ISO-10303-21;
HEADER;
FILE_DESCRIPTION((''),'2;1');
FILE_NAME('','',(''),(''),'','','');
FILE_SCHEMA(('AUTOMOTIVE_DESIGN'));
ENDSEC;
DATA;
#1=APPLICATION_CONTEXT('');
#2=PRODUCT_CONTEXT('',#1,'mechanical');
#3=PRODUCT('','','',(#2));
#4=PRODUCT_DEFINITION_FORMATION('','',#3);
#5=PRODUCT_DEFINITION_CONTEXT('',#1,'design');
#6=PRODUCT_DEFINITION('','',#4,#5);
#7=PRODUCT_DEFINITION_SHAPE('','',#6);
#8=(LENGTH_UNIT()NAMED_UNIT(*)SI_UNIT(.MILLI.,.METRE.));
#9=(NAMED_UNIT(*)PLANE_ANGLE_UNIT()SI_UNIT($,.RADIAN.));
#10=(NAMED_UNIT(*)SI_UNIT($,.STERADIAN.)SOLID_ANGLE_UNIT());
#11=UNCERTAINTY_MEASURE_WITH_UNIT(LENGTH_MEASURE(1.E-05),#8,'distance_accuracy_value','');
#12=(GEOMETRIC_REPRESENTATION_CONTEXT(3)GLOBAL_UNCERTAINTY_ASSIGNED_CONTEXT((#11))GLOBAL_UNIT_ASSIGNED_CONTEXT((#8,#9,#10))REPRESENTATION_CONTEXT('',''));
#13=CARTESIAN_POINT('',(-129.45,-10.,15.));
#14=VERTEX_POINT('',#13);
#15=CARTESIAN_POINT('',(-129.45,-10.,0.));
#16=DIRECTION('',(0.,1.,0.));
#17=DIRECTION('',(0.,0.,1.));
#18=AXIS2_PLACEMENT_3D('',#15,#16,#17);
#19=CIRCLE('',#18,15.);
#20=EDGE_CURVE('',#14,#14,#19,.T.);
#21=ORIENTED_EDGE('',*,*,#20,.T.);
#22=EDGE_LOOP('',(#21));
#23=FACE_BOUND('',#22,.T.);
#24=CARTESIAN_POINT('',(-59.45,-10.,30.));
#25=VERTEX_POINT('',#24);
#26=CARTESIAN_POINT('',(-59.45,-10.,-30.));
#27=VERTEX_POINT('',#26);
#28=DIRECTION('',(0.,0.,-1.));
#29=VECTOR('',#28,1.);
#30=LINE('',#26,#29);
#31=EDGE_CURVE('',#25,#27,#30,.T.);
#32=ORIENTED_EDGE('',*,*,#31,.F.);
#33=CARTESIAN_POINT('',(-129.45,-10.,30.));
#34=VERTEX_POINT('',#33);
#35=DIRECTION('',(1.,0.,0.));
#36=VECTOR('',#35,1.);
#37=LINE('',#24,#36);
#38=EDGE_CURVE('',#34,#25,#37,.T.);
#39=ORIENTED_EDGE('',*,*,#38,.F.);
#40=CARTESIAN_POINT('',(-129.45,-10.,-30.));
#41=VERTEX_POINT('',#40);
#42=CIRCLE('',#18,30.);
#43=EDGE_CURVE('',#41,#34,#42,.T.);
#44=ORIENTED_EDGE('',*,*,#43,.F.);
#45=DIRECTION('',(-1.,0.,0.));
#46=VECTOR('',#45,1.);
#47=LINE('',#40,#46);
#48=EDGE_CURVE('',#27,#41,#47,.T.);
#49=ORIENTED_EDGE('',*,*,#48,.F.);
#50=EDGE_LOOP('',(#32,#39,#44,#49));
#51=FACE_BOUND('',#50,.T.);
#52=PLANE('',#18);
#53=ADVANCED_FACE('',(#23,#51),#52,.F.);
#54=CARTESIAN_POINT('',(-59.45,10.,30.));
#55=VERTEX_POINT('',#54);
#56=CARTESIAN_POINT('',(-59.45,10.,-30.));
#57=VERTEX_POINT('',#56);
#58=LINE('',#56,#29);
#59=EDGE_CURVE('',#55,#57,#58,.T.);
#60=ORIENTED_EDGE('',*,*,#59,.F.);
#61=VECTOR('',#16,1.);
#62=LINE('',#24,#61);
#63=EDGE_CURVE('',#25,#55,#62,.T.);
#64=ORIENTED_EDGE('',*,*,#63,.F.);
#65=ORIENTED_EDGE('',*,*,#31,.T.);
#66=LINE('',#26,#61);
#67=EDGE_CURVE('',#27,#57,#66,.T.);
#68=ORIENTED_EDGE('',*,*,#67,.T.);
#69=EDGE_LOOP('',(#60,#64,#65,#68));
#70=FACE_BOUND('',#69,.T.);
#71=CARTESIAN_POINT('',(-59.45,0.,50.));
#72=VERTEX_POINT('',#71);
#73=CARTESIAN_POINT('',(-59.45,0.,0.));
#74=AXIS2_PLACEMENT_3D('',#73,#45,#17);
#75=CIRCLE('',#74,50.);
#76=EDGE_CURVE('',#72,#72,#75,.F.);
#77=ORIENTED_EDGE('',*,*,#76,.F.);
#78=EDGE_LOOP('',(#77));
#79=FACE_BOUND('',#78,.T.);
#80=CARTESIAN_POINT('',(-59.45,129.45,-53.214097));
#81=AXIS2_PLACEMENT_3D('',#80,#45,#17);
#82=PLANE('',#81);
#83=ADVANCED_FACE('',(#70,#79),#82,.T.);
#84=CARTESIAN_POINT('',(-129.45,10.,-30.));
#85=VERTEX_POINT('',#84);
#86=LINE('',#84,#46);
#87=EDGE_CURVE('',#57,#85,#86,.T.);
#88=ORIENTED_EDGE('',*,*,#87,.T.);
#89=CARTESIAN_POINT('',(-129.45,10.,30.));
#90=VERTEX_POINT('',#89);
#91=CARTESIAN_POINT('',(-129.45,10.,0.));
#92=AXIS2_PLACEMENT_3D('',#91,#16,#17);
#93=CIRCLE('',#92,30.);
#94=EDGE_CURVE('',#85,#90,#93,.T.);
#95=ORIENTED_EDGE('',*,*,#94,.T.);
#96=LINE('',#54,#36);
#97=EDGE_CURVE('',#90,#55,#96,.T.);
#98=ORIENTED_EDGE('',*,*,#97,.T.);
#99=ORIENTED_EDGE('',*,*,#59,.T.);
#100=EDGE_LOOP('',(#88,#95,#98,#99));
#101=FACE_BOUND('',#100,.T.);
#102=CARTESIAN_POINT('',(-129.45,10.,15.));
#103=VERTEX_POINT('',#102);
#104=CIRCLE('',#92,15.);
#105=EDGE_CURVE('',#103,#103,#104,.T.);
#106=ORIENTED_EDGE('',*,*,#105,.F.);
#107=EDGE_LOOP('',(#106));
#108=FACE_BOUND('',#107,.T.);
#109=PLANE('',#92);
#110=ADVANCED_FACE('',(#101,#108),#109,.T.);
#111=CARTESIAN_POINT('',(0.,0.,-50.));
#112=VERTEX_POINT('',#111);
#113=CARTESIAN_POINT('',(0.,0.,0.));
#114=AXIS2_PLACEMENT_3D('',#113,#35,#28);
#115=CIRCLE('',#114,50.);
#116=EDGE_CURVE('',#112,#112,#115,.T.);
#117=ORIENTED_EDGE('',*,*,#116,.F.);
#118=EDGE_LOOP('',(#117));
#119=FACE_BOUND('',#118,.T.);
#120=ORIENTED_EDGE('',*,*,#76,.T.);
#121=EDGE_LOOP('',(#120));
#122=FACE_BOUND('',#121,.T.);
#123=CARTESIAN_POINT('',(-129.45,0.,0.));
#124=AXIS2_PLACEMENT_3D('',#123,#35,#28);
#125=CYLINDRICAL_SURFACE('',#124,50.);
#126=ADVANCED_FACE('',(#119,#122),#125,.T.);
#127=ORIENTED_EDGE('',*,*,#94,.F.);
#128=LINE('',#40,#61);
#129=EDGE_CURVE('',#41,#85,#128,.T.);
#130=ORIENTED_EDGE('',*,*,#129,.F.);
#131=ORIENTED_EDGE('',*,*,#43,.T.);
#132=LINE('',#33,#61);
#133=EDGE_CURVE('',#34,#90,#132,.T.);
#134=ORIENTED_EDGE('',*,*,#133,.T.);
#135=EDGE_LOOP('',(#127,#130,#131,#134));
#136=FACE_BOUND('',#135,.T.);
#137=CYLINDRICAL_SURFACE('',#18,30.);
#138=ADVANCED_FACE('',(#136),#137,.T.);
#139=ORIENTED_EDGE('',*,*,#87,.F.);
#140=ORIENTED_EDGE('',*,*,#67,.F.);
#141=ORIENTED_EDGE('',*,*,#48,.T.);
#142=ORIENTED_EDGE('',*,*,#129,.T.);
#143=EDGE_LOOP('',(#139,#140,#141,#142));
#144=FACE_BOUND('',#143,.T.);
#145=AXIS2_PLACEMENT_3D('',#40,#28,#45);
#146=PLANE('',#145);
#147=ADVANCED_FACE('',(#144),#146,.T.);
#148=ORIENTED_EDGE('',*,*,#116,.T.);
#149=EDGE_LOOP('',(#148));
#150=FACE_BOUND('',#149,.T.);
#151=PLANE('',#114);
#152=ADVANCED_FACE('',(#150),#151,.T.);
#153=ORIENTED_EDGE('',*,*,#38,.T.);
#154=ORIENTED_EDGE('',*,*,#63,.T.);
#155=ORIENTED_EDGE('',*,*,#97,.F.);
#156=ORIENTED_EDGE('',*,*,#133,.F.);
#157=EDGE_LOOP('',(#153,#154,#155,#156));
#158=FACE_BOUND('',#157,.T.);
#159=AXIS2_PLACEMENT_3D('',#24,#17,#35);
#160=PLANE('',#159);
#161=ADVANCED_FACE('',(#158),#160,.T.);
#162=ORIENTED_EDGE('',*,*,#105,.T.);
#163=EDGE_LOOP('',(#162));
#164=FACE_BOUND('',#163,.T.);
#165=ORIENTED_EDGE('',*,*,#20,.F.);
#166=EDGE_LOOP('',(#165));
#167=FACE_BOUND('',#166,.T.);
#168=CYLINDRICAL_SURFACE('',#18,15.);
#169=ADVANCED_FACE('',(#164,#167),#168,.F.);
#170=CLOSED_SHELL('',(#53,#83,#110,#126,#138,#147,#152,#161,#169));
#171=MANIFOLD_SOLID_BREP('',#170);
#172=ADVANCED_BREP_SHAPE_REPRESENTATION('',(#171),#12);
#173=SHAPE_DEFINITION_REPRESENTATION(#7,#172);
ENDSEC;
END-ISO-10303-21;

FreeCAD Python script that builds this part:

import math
import FreeCAD as App
import Part
import Sketcher


def add_polygon(sketch, points):
    """Adds a closed chain of lines whose ends are joined by coincident constraints."""
    first, n = sketch.GeometryCount, len(points)
    for a, b in zip(points, points[1:] + points[:1]):
        sketch.addGeometry(Part.LineSegment(App.Vector(*a, 0), App.Vector(*b, 0)), False)
    for i in range(n):
        sketch.addConstraint(Sketcher.Constraint("Coincident", first + i, 2, first + (i + 1) % n, 1))

doc = App.newDocument("Part")
body = doc.addObject("PartDesign::Body", "Body")

sketch1 = body.newObject("Sketcher::SketchObject", "Sketch")
sketch1.AttachmentSupport = (doc.getObject("YZ_Plane"), [""])
sketch1.MapMode = "FlatFace"
sketch1.addGeometry(Part.Circle(App.Vector(0, 0, 0), App.Vector(0, 0, 1), 50), False)
sketch1.addConstraint([
    Sketcher.Constraint("Coincident", 0, 3, -1, 1),
    Sketcher.Constraint("Diameter", 0, 100.0),
])
pad1 = body.newObject("PartDesign::Pad", "Pad")
pad1.Profile = sketch1
pad1.Length = 129.45
pad1.Reversed = True

sketch2 = body.newObject("Sketcher::SketchObject", "Sketch001")
sketch2.AttachmentSupport = (doc.getObject("XZ_Plane"), [""])
sketch2.MapMode = "FlatFace"
add_polygon(sketch2, [(-133, -53), (-133, 59), (-59, 59), (-59, -53)])
sketch2.addConstraint([
    Sketcher.Constraint("Vertical", 0),
    Sketcher.Constraint("Horizontal", 1),
    Sketcher.Constraint("Vertical", 2),
    Sketcher.Constraint("Horizontal", 3),
    Sketcher.Constraint("DistanceX", 1, 2, -1, 1, 59.45),
    Sketcher.Constraint("DistanceX", 1, 1, 1, 2, 73.302624),
    Sketcher.Constraint("DistanceY", 0, 1, 0, 2, 112.659737),
    Sketcher.Constraint("DistanceY", -1, 1, 0, 2, 59.44564),
])
pocket1 = body.newObject("PartDesign::Pocket", "Pocket")
pocket1.Profile = sketch2
pocket1.Type = "ThroughAll"
pocket1.Midplane = True

sketch3 = body.newObject("Sketcher::SketchObject", "Sketch002")
sketch3.AttachmentSupport = (doc.getObject("XZ_Plane"), [""])
sketch3.MapMode = "FlatFace"
sketch3.addGeometry([
    Part.LineSegment(App.Vector(-59, -30, 0), App.Vector(-129, -30, 0)),
    Part.ArcOfCircle(Part.Circle(App.Vector(-129, 0, 0), App.Vector(0, 0, 1), 30), math.radians(90), math.radians(270)),
    Part.LineSegment(App.Vector(-129, 30, 0), App.Vector(-59, 30, 0)),
    Part.LineSegment(App.Vector(-59, 30, 0), App.Vector(-59, -30, 0)),
    Part.Circle(App.Vector(-129, 0, 0), App.Vector(0, 0, 1), 15),
], False)
sketch3.addConstraint([
    Sketcher.Constraint("Tangent", 0, 2, 1, 2),
    Sketcher.Constraint("Tangent", 1, 1, 2, 1),
    Sketcher.Constraint("Coincident", 2, 2, 3, 1),
    Sketcher.Constraint("Coincident", 3, 2, 0, 1),
    Sketcher.Constraint("Horizontal", 0),
    Sketcher.Constraint("Horizontal", 2),
    Sketcher.Constraint("Vertical", 3),
    Sketcher.Constraint("Coincident", 4, 3, 1, 3),
    Sketcher.Constraint("PointOnObject", 1, 3, -1),
    Sketcher.Constraint("Diameter", 4, 30.0),
    Sketcher.Constraint("Radius", 1, 30.0),
    Sketcher.Constraint("DistanceX", 0, 2, 0, 1, 70.0),
    Sketcher.Constraint("DistanceX", 1, 3, -1, 1, 129.45),
])
pad2 = body.newObject("PartDesign::Pad", "Pad001")
pad2.Profile = sketch3
pad2.Type = "TwoLengths"
pad2.Length = 10
pad2.Length2 = 10
pad2.Reversed = True

doc.recompute()
